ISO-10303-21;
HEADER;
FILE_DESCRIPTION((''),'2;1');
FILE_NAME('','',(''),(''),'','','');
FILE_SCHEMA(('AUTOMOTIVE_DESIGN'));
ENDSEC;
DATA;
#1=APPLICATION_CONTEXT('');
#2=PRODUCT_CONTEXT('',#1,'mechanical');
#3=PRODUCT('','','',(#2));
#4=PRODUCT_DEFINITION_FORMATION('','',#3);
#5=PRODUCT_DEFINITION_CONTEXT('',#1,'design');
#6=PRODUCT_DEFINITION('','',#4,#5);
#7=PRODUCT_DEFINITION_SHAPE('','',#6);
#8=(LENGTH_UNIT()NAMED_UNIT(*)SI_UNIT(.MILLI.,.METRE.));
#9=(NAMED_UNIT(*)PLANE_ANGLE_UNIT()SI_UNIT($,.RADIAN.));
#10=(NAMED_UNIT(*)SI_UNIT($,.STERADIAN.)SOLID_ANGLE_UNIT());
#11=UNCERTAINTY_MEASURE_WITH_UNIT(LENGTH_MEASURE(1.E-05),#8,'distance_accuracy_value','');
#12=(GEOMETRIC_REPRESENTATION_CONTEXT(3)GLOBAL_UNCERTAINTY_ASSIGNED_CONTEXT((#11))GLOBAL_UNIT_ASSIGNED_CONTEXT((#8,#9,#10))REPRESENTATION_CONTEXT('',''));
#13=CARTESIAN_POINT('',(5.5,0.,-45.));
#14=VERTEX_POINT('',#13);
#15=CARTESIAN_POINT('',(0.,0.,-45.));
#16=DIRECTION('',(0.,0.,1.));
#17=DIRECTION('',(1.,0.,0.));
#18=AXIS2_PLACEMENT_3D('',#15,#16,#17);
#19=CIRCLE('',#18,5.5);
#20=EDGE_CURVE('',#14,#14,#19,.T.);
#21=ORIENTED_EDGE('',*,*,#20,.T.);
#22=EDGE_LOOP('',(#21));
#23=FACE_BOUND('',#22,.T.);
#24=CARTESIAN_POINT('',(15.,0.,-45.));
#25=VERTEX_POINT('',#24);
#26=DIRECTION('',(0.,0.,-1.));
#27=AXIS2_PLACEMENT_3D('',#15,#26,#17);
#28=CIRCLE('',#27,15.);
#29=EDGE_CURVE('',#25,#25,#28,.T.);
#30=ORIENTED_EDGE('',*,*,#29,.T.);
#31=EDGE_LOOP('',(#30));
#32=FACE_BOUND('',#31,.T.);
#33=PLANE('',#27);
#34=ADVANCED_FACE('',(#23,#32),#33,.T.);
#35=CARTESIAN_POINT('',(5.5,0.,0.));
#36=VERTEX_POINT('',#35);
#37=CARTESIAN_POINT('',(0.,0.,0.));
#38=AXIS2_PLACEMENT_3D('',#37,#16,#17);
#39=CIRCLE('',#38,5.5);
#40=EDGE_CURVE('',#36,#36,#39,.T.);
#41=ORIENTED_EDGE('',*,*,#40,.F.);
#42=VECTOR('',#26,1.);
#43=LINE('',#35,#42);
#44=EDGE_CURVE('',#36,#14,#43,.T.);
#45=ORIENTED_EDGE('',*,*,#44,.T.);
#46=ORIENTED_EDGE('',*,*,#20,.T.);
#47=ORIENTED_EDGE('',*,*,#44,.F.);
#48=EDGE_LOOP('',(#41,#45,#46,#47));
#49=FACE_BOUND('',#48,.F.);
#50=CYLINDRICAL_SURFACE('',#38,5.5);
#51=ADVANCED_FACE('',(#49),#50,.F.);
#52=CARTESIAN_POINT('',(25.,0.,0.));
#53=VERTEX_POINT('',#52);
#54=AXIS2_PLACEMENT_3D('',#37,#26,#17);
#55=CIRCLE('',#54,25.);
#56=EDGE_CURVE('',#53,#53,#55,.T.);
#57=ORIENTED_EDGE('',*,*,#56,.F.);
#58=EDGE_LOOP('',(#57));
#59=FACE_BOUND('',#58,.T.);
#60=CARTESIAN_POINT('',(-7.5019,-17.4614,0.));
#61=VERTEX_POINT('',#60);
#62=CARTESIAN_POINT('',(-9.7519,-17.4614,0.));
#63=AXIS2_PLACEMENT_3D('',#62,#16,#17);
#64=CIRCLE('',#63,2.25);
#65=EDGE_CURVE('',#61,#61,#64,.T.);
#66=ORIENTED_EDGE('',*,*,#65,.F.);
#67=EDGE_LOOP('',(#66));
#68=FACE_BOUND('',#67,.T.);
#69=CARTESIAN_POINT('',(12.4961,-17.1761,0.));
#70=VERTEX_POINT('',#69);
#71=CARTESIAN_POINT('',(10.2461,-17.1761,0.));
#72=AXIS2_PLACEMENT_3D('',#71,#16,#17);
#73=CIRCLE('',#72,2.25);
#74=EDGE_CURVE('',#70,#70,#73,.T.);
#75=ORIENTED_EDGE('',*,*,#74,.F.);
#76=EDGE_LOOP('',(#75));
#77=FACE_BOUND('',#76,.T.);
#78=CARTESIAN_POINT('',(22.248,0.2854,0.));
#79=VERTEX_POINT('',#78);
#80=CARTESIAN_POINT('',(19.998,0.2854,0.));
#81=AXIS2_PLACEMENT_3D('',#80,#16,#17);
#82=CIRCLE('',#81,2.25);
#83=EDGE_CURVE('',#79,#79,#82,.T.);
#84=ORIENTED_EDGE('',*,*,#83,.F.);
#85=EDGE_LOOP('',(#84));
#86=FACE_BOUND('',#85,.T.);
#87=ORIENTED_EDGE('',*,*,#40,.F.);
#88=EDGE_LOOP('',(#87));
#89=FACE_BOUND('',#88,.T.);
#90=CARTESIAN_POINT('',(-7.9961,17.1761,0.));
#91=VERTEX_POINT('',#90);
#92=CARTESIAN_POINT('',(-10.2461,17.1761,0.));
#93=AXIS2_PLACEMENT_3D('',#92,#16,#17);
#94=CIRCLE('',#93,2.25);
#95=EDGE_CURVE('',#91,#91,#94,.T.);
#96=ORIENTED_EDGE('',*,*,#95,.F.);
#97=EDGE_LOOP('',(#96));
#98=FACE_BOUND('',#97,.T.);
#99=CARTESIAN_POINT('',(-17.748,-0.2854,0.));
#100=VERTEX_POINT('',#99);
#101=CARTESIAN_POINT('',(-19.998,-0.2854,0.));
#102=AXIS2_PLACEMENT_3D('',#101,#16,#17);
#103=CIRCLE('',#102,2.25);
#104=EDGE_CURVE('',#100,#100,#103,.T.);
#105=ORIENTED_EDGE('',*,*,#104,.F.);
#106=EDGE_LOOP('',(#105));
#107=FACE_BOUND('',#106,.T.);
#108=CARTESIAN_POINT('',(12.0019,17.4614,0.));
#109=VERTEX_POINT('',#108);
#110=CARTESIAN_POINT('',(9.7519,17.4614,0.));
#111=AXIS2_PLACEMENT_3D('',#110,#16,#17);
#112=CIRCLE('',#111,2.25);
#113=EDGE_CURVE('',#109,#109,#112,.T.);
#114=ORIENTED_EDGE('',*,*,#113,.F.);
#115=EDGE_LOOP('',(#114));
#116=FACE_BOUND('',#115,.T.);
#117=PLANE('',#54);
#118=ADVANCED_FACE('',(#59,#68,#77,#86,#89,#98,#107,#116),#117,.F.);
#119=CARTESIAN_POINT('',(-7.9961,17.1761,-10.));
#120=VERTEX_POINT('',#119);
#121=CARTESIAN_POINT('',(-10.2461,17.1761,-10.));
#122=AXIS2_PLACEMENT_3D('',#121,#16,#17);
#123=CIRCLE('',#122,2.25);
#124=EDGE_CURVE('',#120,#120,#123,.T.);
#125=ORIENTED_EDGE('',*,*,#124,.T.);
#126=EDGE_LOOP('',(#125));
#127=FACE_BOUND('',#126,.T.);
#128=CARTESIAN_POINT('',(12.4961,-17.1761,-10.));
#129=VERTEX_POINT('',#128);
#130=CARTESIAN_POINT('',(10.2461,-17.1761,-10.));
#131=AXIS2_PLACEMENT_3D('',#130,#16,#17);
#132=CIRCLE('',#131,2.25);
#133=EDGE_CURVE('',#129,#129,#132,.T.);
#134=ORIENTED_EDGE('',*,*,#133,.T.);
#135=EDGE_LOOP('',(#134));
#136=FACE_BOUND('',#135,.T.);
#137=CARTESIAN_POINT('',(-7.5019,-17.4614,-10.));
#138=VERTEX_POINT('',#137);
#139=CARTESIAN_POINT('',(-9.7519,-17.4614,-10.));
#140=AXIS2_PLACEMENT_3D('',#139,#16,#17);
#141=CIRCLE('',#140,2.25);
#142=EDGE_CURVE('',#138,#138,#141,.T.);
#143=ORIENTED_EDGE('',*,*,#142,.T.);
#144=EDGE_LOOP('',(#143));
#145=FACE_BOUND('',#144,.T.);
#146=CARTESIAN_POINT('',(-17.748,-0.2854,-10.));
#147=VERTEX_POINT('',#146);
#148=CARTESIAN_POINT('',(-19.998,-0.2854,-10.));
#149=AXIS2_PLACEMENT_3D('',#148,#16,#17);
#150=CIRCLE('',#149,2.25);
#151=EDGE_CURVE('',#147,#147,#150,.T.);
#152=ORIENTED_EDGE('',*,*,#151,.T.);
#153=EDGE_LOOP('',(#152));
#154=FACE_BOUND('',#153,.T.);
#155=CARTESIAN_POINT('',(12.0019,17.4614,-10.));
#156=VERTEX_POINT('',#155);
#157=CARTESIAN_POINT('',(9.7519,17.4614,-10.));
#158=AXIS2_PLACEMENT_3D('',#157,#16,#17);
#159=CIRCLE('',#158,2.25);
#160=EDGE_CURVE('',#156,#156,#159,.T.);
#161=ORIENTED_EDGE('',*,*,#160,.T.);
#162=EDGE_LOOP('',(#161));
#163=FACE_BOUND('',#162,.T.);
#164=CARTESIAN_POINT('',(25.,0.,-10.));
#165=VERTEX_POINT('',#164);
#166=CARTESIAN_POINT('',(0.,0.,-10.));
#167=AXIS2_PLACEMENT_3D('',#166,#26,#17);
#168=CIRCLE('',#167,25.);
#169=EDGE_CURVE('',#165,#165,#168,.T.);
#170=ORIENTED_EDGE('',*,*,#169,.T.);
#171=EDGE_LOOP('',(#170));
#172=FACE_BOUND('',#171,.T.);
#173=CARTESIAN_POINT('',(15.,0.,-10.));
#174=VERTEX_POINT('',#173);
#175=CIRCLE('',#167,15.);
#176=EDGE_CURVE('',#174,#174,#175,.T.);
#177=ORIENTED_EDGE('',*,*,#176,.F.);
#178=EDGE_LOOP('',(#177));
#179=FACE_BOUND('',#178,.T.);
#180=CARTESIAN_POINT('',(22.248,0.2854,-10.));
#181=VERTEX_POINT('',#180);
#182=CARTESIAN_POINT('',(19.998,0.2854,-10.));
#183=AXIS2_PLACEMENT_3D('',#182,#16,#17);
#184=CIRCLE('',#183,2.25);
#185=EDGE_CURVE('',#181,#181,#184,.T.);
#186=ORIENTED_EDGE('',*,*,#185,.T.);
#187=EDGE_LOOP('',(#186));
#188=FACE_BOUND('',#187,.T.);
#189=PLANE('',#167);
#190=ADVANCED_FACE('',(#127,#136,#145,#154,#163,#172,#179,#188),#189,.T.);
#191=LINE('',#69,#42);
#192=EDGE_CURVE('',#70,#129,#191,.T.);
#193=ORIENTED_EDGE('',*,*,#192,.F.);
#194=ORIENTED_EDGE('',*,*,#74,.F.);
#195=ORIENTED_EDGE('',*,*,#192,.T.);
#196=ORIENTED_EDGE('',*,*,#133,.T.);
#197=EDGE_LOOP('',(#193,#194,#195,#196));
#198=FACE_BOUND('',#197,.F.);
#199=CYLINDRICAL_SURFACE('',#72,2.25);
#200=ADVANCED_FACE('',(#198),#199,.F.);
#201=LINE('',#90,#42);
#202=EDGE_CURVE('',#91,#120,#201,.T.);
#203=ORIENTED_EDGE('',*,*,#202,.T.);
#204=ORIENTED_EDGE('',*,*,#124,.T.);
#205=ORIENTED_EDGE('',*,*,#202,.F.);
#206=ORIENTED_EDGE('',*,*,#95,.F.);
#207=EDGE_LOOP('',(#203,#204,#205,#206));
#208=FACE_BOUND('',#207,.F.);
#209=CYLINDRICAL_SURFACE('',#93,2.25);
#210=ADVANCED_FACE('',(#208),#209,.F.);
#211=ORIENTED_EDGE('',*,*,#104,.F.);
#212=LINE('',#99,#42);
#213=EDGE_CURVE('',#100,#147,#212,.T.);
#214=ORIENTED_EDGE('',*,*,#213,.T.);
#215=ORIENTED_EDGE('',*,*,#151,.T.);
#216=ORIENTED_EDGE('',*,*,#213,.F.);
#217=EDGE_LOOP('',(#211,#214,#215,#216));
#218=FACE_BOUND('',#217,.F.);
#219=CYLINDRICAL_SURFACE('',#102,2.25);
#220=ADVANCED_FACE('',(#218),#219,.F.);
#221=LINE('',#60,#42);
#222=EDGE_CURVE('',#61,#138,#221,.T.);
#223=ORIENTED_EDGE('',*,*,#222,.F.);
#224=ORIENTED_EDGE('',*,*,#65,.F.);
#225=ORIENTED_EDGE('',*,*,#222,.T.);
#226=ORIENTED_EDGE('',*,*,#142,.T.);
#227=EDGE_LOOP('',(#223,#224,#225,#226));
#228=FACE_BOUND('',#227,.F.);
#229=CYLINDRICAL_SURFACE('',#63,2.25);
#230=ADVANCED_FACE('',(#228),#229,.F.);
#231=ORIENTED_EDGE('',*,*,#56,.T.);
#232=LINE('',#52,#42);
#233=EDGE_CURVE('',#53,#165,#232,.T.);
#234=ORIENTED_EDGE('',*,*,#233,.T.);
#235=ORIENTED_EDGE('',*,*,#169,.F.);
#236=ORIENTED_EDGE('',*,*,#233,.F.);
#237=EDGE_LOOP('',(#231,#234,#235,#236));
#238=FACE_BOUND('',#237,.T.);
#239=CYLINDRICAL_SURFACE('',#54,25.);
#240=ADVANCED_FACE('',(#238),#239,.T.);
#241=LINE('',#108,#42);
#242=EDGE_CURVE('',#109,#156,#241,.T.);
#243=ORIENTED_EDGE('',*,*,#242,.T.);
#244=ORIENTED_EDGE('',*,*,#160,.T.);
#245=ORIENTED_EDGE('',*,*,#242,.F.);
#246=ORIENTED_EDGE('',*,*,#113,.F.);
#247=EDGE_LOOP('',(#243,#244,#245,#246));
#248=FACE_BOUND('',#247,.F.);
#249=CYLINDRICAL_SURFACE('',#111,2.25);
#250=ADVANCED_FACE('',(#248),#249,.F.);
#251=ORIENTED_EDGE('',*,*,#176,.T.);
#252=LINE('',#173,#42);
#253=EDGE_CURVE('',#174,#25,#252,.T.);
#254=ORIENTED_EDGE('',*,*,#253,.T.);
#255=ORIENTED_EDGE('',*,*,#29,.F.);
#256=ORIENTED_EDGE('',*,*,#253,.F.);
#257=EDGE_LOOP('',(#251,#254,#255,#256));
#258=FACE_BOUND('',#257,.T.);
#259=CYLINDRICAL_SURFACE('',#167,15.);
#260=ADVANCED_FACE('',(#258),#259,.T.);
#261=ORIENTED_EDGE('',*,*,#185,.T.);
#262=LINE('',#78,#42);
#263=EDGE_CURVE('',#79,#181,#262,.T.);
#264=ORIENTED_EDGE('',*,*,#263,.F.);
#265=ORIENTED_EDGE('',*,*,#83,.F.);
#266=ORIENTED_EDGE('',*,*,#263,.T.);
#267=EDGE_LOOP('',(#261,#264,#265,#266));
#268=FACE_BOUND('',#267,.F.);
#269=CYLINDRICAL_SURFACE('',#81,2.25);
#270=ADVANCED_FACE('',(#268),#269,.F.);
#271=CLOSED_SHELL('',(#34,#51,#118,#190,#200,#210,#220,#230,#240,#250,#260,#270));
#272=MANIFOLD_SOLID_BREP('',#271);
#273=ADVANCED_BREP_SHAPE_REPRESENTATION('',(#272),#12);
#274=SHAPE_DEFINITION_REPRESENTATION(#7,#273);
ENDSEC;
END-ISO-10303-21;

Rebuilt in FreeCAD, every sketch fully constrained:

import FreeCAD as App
import Part
import Sketcher

V = App.Vector


def add_polygon(sketch, points):
    """Adds a closed chain of lines whose ends are joined by coincident constraints."""
    first, n = sketch.GeometryCount, len(points)
    for a, b in zip(points, points[1:] + points[:1]):
        sketch.addGeometry(Part.LineSegment(App.Vector(*a, 0), App.Vector(*b, 0)), False)
    for i in range(n):
        sketch.addConstraint(Sketcher.Constraint("Coincident", first + i, 2, first + (i + 1) % n, 1))

doc = App.newDocument("Part")
body = doc.addObject("PartDesign::Body", "Body")

# Sketch on XZ plane
sketch1 = body.newObject("Sketcher::SketchObject", "Sketch")
sketch1.AttachmentSupport = (doc.getObject("XZ_Plane"), [""])
sketch1.MapMode = "FlatFace"
add_polygon(sketch1, [(0, -45), (0, 0), (25, 0), (25, -10), (15, -10), (15, -45)])  # lines 0-5
sketch1.addConstraint([
    Sketcher.Constraint("Vertical", 0),
    Sketcher.Constraint("Horizontal", 1),
    Sketcher.Constraint("Vertical", 2),
    Sketcher.Constraint("Horizontal", 3),
    Sketcher.Constraint("Vertical", 4),
    Sketcher.Constraint("Horizontal", 5),
    Sketcher.Constraint("Coincident", 0, 2, -1, 1),
    Sketcher.Constraint("Equal", 3, 2),
    Sketcher.Constraint("DistanceX", 1, 1, 1, 2, 25.0),
    Sketcher.Constraint("DistanceX", 3, 2, 3, 1, 10.0),
    Sketcher.Constraint("DistanceY", 4, 2, 4, 1, 35.0),
])
revolution = body.newObject("PartDesign::Revolution", "Revolution")
revolution.Profile = sketch1
revolution.ReferenceAxis = (sketch1, ["V_Axis"])
revolution.Angle = 360

# Sketch on XY plane
sketch2 = body.newObject("Sketcher::SketchObject", "Sketch001")
sketch2.AttachmentSupport = (doc.getObject("XY_Plane"), [""])
sketch2.MapMode = "FlatFace"
sketch2.addGeometry([
    Part.Circle(V(9.8, 17.5, 0), V(0, 0, 1), 2.2),  # 0
    Part.Circle(V(20, 0.3, 0), V(0, 0, 1), 2.2),  # 1
    Part.Circle(V(10.2, -17.2, 0), V(0, 0, 1), 2.2),  # 2
    Part.Circle(V(-9.8, -17.5, 0), V(0, 0, 1), 2.2),  # 3
    Part.Circle(V(-20, -0.3, 0), V(0, 0, 1), 2.2),  # 4
    Part.Circle(V(-10.2, 17.2, 0), V(0, 0, 1), 2.2),  # 5
], False)
sketch2.addConstraint([
    Sketcher.Constraint("Equal", 0, 1),
    Sketcher.Constraint("Equal", 1, 2),
    Sketcher.Constraint("Equal", 2, 3),
    Sketcher.Constraint("Equal", 3, 4),
    Sketcher.Constraint("Equal", 4, 5),
    Sketcher.Constraint("Symmetric", 0, 3, 3, 3, -1, 1),
    Sketcher.Constraint("Symmetric", 1, 3, 4, 3, -1, 1),
    Sketcher.Constraint("Symmetric", 2, 3, 5, 3, -1, 1),
    Sketcher.Constraint("Diameter", 0, 4.5),
    Sketcher.Constraint("DistanceX", 3, 3, 1, 3, 29.75),
    Sketcher.Constraint("DistanceX", -1, 1, 0, 3, 9.752),
    Sketcher.Constraint("DistanceX", -1, 1, 2, 3, 10.246),
    Sketcher.Constraint("DistanceY", 2, 3, -1, 1, 17.176),
    Sketcher.Constraint("DistanceY", 1, 3, 0, 3, 17.176),
    Sketcher.Constraint("DistanceY", -1, 1, 0, 3, 17.4614),
])
pocket1 = body.newObject("PartDesign::Pocket", "Pocket")
pocket1.Profile = sketch2
pocket1.Type = "ThroughAll"

# Sketch on XY plane
sketch3 = body.newObject("Sketcher::SketchObject", "Sketch002")
sketch3.AttachmentSupport = (doc.getObject("XY_Plane"), [""])
sketch3.MapMode = "FlatFace"
sketch3.addGeometry(Part.Circle(V(0, 0, 0), V(0, 0, 1), 6), False)
sketch3.addConstraint([
    Sketcher.Constraint("Coincident", 0, 3, -1, 1),
    Sketcher.Constraint("Diameter", 0, 11.0),
])
pocket2 = body.newObject("PartDesign::Pocket", "Pocket001")
pocket2.Profile = sketch3
pocket2.Type = "ThroughAll"

doc.recompute()
